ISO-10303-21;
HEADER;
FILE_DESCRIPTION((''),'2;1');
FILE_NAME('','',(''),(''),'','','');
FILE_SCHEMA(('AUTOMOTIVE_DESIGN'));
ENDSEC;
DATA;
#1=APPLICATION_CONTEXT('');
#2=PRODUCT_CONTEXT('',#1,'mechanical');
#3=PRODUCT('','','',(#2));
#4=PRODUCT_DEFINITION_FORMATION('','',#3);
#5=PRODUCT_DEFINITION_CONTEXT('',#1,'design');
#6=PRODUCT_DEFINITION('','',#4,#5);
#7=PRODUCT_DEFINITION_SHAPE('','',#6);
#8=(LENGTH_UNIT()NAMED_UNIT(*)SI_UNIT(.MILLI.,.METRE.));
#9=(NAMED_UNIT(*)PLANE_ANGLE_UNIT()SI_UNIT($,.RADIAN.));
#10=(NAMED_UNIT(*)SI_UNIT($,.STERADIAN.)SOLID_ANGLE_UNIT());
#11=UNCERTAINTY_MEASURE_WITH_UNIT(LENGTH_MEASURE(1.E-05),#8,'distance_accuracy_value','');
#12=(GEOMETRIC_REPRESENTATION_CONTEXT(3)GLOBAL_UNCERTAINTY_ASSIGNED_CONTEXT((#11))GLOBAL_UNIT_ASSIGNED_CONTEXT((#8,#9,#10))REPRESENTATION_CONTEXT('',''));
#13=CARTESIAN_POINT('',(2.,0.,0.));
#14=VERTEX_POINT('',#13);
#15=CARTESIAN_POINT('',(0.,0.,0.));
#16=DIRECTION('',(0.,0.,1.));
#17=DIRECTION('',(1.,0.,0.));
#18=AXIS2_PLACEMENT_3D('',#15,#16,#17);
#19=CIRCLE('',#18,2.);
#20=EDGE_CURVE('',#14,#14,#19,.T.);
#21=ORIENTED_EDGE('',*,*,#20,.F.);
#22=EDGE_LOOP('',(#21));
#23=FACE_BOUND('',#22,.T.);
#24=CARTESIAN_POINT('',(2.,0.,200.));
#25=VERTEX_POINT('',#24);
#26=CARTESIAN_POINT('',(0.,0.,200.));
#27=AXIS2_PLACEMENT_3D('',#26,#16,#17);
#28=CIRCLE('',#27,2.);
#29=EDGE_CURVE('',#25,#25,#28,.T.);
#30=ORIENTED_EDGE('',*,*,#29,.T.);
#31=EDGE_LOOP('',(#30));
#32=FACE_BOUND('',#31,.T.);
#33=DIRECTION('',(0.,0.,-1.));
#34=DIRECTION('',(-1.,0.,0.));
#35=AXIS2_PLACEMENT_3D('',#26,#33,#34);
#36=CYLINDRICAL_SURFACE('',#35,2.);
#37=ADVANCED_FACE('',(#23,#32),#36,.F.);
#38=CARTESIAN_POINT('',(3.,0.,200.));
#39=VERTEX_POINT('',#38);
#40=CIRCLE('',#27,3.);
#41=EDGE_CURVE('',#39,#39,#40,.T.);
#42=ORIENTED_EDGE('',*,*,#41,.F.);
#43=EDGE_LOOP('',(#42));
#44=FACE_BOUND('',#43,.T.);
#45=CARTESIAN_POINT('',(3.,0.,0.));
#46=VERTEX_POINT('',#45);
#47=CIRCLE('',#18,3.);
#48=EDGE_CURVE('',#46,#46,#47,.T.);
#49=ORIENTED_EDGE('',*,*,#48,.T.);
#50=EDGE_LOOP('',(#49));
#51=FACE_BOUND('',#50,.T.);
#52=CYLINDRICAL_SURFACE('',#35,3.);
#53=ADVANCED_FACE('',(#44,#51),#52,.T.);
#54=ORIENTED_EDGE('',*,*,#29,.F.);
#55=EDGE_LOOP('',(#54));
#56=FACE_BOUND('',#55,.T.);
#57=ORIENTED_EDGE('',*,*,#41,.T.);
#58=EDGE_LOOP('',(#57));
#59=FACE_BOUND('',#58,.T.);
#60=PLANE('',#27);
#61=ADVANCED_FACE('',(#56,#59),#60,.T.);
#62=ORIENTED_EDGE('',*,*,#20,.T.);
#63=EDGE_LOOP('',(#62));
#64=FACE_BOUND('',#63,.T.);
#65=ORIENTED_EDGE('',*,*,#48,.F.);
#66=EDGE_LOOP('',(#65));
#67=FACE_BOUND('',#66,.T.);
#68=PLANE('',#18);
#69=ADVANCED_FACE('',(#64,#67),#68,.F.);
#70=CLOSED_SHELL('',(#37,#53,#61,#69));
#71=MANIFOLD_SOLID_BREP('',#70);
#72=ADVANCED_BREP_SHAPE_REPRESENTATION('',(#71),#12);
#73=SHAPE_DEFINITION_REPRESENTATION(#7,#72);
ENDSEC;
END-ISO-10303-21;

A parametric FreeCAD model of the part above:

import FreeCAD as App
import Part
import Sketcher
from FreeCAD import Vector
Q = App.Units.Quantity

doc = App.newDocument("Part")
body = doc.addObject("PartDesign::Body", "Body")

sketch1 = body.newObject("Sketcher::SketchObject", "Sketch")
sketch1.AttachmentSupport = (doc.getObject("XY_Plane"), [""])
sketch1.MapMode = "FlatFace"
sketch1.addGeometry(Part.Circle(Vector(0, 0, 0), Vector(0, 0, 1), 3), False)
sketch1.addGeometry(Part.Circle(Vector(0, 0, 0), Vector(0, 0, 1), 2), False)
sketch1.addConstraint(Sketcher.Constraint("Coincident", 0, 3, -1, 1))
sketch1.addConstraint(Sketcher.Constraint("Coincident", 1, 3, -1, 1))
sketch1.addConstraint(Sketcher.Constraint("Diameter", 0, Q("6 mm")))
sketch1.addConstraint(Sketcher.Constraint("Diameter", 1, Q("4 mm")))
pad1 = body.newObject("PartDesign::Pad", "Pad")
pad1.Profile = sketch1
pad1.Length = 200

doc.recompute()
